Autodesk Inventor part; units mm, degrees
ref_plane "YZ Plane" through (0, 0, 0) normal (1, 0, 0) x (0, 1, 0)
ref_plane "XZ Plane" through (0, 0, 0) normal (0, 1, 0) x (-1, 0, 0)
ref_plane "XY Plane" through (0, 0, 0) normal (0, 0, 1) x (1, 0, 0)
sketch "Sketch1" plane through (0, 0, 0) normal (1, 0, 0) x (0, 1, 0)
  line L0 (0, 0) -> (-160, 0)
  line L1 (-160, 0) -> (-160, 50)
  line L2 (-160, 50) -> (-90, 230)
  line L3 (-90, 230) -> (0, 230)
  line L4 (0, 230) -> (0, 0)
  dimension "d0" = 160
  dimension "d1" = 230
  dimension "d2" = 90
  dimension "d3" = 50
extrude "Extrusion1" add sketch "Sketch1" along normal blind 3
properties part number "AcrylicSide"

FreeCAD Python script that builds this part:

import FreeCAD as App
import Part
import Sketcher


def add_polygon(sketch, points):
    """Adds a closed chain of lines whose ends are joined by coincident constraints."""
    first, n = sketch.GeometryCount, len(points)
    for a, b in zip(points, points[1:] + points[:1]):
        sketch.addGeometry(Part.LineSegment(App.Vector(*a, 0), App.Vector(*b, 0)), False)
    for i in range(n):
        sketch.addConstraint(Sketcher.Constraint("Coincident", first + i, 2, first + (i + 1) % n, 1))

doc = App.newDocument("Part")
body = doc.addObject("PartDesign::Body", "Body")

sketch1 = doc.addObject("Sketcher::SketchObject", "Sketch")
body.addObject(sketch1)
sketch1.AttachmentSupport = (doc.YZ_Plane, [""])
sketch1.MapMode = "FlatFace"
add_polygon(sketch1, [(-160, 0), (0, 0), (0, 230), (-90, 230), (-160, 50)])
sketch1.addConstraint(Sketcher.Constraint("Horizontal", 0))
sketch1.addConstraint(Sketcher.Constraint("Vertical", 1))
sketch1.addConstraint(Sketcher.Constraint("Horizontal", 2))
sketch1.addConstraint(Sketcher.Constraint("Vertical", 4))
sketch1.addConstraint(Sketcher.Constraint("Coincident", 0, 2, -1, 1))
sketch1.addConstraint(Sketcher.Constraint("DistanceX", 0, 1, 0, 2, 160.0))
sketch1.addConstraint(Sketcher.Constraint("DistanceX", 2, 2, 2, 1, 90.0))
sketch1.addConstraint(Sketcher.Constraint("DistanceY", 1, 1, 1, 2, 230.0))
sketch1.addConstraint(Sketcher.Constraint("DistanceY", 4, 2, 4, 1, 50.0))
pad1 = doc.addObject("PartDesign::Pad", "Pad")
body.addObject(pad1)
pad1.Profile = sketch1
pad1.Length = 3

doc.recompute()
